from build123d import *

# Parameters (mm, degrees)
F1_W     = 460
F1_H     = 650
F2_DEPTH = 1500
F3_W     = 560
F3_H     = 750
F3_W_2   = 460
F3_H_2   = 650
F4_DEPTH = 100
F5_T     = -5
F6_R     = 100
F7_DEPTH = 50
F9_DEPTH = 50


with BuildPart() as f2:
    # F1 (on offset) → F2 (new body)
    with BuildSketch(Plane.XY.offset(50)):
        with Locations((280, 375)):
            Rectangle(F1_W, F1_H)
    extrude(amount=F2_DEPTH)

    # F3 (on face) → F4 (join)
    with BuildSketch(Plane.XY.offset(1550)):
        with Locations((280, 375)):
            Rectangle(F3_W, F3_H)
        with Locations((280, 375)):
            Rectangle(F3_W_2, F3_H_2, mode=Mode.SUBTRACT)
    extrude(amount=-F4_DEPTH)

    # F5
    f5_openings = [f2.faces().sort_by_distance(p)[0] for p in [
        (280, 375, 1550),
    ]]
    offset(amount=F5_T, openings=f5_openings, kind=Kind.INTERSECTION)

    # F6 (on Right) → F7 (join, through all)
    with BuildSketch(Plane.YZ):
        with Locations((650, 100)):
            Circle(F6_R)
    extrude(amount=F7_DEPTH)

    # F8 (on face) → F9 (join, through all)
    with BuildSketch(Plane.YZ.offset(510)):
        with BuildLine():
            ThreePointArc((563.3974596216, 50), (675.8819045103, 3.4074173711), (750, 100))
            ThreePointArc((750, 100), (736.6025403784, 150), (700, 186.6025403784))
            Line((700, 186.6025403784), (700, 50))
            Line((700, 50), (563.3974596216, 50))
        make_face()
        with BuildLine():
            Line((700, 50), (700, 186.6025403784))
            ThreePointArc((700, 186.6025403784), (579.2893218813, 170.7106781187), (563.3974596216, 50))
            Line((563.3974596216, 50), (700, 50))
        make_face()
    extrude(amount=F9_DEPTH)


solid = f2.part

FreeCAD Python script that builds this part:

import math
import FreeCAD as App
import Part
import Sketcher

V = App.Vector


def faces_at(feature, points):
    """Names of the faces that lie closest to the given points."""
    faces = feature.Shape.Faces
    near = lambda p: min(range(len(faces)), key=lambda i: faces[i].distToShape(Part.Vertex(*p))[0])
    return sorted({f"Face{near(p) + 1}" for p in points})

doc = App.newDocument("Part")
body = doc.addObject("PartDesign::Body", "Body")

sketch1 = doc.addObject("Sketcher::SketchObject", "Sketch")
body.addObject(sketch1)
sketch1.AttachmentSupport = (doc.XY_Plane, [""])
sketch1.MapMode = "FlatFace"
sketch1.AttachmentOffset = App.Placement(V(0, 0, 50), App.Rotation())
sketch1.addGeometry(Part.LineSegment(V(50, 700, 0), V(50, 50, 0)), False)
sketch1.addGeometry(Part.LineSegment(V(50, 50, 0), V(510, 50, 0)), False)
sketch1.addGeometry(Part.LineSegment(V(510, 50, 0), V(510, 700, 0)), False)
sketch1.addGeometry(Part.LineSegment(V(510, 700, 0), V(50, 700, 0)), False)
sketch1.addConstraint(Sketcher.Constraint("Coincident", 0, 2, 1, 1))
sketch1.addConstraint(Sketcher.Constraint("Coincident", 1, 2, 2, 1))
sketch1.addConstraint(Sketcher.Constraint("Coincident", 2, 2, 3, 1))
sketch1.addConstraint(Sketcher.Constraint("Coincident", 3, 2, 0, 1))
sketch1.addConstraint(Sketcher.Constraint("Vertical", 0))
sketch1.addConstraint(Sketcher.Constraint("Horizontal", 1))
sketch1.addConstraint(Sketcher.Constraint("Vertical", 2))
sketch1.addConstraint(Sketcher.Constraint("Horizontal", 3))
sketch1.addConstraint(Sketcher.Constraint("DistanceX", 1, 1, 1, 2, 460.0))
sketch1.addConstraint(Sketcher.Constraint("DistanceY", 0, 2, 0, 1, 650.0))
sketch1.addConstraint(Sketcher.Constraint("DistanceX", -1, 1, 0, 2, 50.0))
sketch1.addConstraint(Sketcher.Constraint("DistanceY", -1, 1, 0, 2, 50.0))
pad1 = doc.addObject("PartDesign::Pad", "Pad")
body.addObject(pad1)
pad1.Profile = sketch1
pad1.Length = 1500

sketch2 = doc.addObject("Sketcher::SketchObject", "Sketch001")
body.addObject(sketch2)
sketch2.AttachmentSupport = (doc.XY_Plane, [""])
sketch2.MapMode = "FlatFace"
sketch2.AttachmentOffset = App.Placement(V(0, 0, 1550), App.Rotation())
sketch2.addGeometry(Part.LineSegment(V(0, 750, 0), V(0, 0, 0)), False)
sketch2.addGeometry(Part.LineSegment(V(0, 0, 0), V(560, 0, 0)), False)
sketch2.addGeometry(Part.LineSegment(V(560, 0, 0), V(560, 750, 0)), False)
sketch2.addGeometry(Part.LineSegment(V(560, 750, 0), V(0, 750, 0)), False)
sketch2.addGeometry(Part.LineSegment(V(510, 50, 0), V(50, 50, 0)), False)
sketch2.addGeometry(Part.LineSegment(V(50, 50, 0), V(50, 700, 0)), False)
sketch2.addGeometry(Part.LineSegment(V(50, 700, 0), V(510, 700, 0)), False)
sketch2.addGeometry(Part.LineSegment(V(510, 700, 0), V(510, 50, 0)), False)
sketch2.addConstraint(Sketcher.Constraint("Coincident", 0, 2, 1, 1))
sketch2.addConstraint(Sketcher.Constraint("Coincident", 1, 2, 2, 1))
sketch2.addConstraint(Sketcher.Constraint("Coincident", 2, 2, 3, 1))
sketch2.addConstraint(Sketcher.Constraint("Coincident", 3, 2, 0, 1))
sketch2.addConstraint(Sketcher.Constraint("Coincident", 4, 2, 5, 1))
sketch2.addConstraint(Sketcher.Constraint("Coincident", 5, 2, 6, 1))
sketch2.addConstraint(Sketcher.Constraint("Coincident", 6, 2, 7, 1))
sketch2.addConstraint(Sketcher.Constraint("Coincident", 7, 2, 4, 1))
sketch2.addConstraint(Sketcher.Constraint("Vertical", 0))
sketch2.addConstraint(Sketcher.Constraint("Horizontal", 1))
sketch2.addConstraint(Sketcher.Constraint("Vertical", 2))
sketch2.addConstraint(Sketcher.Constraint("Horizontal", 3))
sketch2.addConstraint(Sketcher.Constraint("Horizontal", 4))
sketch2.addConstraint(Sketcher.Constraint("Vertical", 5))
sketch2.addConstraint(Sketcher.Constraint("Horizontal", 6))
sketch2.addConstraint(Sketcher.Constraint("Vertical", 7))
sketch2.addConstraint(Sketcher.Constraint("Coincident", 0, 2, -1, 1))
sketch2.addConstraint(Sketcher.Constraint("DistanceX", 1, 1, 1, 2, 560.0))
sketch2.addConstraint(Sketcher.Constraint("DistanceX", 4, 2, 4, 1, 460.0))
sketch2.addConstraint(Sketcher.Constraint("DistanceY", 0, 2, 0, 1, 750.0))
sketch2.addConstraint(Sketcher.Constraint("DistanceY", 5, 1, 5, 2, 650.0))
sketch2.addConstraint(Sketcher.Constraint("DistanceX", -1, 1, 4, 2, 50.0))
sketch2.addConstraint(Sketcher.Constraint("DistanceY", -1, 1, 4, 2, 50.0))
pad2 = doc.addObject("PartDesign::Pad", "Pad001")
body.addObject(pad2)
pad2.Profile = sketch2
pad2.Length = 100
pad2.Reversed = True
doc.recompute()

thickness = doc.addObject("PartDesign::Thickness", "Thickness")
body.addObject(thickness)
thickness.Base = (pad2, faces_at(pad2, [(280, 375, 1550)]))
thickness.Value = 5
thickness.Reversed = True
thickness.Join = "Intersection"

sketch3 = doc.addObject("Sketcher::SketchObject", "Sketch002")
body.addObject(sketch3)
sketch3.AttachmentSupport = (doc.YZ_Plane, [""])
sketch3.MapMode = "FlatFace"
sketch3.addGeometry(Part.Circle(V(650, 100, 0), V(0, 0, 1), 100), False)
sketch3.addConstraint(Sketcher.Constraint("Diameter", 0, 200.0))
sketch3.addConstraint(Sketcher.Constraint("DistanceX", -1, 1, 0, 3, 650.0))
sketch3.addConstraint(Sketcher.Constraint("DistanceY", -1, 1, 0, 3, 100.0))
pad3 = doc.addObject("PartDesign::Pad", "Pad002")
body.addObject(pad3)
pad3.Profile = sketch3
pad3.Length = 50

sketch4 = doc.addObject("Sketcher::SketchObject", "Sketch003")
body.addObject(sketch4)
sketch4.AttachmentSupport = (doc.YZ_Plane, [""])
sketch4.MapMode = "FlatFace"
sketch4.AttachmentOffset = App.Placement(V(0, 0, 510), App.Rotation())
sketch4.addGeometry(Part.ArcOfCircle(Part.Circle(V(650, 100, 0), V(0, 0, 1), 100), math.radians(-150), math.radians(60)), False)
sketch4.addGeometry(Part.ArcOfCircle(Part.Circle(V(650, 100, 0), V(0, 0, 1), 100), math.radians(60), math.radians(210)), False)
sketch4.addConstraint(Sketcher.Constraint("Tangent", 0, 1, 1, 2))
sketch4.addConstraint(Sketcher.Constraint("Coincident", 1, 1, 0, 2))
sketch4.addConstraint(Sketcher.Constraint("Radius", 0, 100.0))
sketch4.addConstraint(Sketcher.Constraint("DistanceX", -1, 1, 0, 3, 650.0))
sketch4.addConstraint(Sketcher.Constraint("DistanceY", -1, 1, 0, 3, 100.0))
sketch4.addConstraint(Sketcher.Constraint("DistanceY", -1, 1, 0, 1, 50.0))
sketch4.addConstraint(Sketcher.Constraint("DistanceX", -1, 1, 1, 1, 700.0))
pad4 = doc.addObject("PartDesign::Pad", "Pad003")
body.addObject(pad4)
pad4.Profile = sketch4
pad4.Length = 50

doc.recompute()
